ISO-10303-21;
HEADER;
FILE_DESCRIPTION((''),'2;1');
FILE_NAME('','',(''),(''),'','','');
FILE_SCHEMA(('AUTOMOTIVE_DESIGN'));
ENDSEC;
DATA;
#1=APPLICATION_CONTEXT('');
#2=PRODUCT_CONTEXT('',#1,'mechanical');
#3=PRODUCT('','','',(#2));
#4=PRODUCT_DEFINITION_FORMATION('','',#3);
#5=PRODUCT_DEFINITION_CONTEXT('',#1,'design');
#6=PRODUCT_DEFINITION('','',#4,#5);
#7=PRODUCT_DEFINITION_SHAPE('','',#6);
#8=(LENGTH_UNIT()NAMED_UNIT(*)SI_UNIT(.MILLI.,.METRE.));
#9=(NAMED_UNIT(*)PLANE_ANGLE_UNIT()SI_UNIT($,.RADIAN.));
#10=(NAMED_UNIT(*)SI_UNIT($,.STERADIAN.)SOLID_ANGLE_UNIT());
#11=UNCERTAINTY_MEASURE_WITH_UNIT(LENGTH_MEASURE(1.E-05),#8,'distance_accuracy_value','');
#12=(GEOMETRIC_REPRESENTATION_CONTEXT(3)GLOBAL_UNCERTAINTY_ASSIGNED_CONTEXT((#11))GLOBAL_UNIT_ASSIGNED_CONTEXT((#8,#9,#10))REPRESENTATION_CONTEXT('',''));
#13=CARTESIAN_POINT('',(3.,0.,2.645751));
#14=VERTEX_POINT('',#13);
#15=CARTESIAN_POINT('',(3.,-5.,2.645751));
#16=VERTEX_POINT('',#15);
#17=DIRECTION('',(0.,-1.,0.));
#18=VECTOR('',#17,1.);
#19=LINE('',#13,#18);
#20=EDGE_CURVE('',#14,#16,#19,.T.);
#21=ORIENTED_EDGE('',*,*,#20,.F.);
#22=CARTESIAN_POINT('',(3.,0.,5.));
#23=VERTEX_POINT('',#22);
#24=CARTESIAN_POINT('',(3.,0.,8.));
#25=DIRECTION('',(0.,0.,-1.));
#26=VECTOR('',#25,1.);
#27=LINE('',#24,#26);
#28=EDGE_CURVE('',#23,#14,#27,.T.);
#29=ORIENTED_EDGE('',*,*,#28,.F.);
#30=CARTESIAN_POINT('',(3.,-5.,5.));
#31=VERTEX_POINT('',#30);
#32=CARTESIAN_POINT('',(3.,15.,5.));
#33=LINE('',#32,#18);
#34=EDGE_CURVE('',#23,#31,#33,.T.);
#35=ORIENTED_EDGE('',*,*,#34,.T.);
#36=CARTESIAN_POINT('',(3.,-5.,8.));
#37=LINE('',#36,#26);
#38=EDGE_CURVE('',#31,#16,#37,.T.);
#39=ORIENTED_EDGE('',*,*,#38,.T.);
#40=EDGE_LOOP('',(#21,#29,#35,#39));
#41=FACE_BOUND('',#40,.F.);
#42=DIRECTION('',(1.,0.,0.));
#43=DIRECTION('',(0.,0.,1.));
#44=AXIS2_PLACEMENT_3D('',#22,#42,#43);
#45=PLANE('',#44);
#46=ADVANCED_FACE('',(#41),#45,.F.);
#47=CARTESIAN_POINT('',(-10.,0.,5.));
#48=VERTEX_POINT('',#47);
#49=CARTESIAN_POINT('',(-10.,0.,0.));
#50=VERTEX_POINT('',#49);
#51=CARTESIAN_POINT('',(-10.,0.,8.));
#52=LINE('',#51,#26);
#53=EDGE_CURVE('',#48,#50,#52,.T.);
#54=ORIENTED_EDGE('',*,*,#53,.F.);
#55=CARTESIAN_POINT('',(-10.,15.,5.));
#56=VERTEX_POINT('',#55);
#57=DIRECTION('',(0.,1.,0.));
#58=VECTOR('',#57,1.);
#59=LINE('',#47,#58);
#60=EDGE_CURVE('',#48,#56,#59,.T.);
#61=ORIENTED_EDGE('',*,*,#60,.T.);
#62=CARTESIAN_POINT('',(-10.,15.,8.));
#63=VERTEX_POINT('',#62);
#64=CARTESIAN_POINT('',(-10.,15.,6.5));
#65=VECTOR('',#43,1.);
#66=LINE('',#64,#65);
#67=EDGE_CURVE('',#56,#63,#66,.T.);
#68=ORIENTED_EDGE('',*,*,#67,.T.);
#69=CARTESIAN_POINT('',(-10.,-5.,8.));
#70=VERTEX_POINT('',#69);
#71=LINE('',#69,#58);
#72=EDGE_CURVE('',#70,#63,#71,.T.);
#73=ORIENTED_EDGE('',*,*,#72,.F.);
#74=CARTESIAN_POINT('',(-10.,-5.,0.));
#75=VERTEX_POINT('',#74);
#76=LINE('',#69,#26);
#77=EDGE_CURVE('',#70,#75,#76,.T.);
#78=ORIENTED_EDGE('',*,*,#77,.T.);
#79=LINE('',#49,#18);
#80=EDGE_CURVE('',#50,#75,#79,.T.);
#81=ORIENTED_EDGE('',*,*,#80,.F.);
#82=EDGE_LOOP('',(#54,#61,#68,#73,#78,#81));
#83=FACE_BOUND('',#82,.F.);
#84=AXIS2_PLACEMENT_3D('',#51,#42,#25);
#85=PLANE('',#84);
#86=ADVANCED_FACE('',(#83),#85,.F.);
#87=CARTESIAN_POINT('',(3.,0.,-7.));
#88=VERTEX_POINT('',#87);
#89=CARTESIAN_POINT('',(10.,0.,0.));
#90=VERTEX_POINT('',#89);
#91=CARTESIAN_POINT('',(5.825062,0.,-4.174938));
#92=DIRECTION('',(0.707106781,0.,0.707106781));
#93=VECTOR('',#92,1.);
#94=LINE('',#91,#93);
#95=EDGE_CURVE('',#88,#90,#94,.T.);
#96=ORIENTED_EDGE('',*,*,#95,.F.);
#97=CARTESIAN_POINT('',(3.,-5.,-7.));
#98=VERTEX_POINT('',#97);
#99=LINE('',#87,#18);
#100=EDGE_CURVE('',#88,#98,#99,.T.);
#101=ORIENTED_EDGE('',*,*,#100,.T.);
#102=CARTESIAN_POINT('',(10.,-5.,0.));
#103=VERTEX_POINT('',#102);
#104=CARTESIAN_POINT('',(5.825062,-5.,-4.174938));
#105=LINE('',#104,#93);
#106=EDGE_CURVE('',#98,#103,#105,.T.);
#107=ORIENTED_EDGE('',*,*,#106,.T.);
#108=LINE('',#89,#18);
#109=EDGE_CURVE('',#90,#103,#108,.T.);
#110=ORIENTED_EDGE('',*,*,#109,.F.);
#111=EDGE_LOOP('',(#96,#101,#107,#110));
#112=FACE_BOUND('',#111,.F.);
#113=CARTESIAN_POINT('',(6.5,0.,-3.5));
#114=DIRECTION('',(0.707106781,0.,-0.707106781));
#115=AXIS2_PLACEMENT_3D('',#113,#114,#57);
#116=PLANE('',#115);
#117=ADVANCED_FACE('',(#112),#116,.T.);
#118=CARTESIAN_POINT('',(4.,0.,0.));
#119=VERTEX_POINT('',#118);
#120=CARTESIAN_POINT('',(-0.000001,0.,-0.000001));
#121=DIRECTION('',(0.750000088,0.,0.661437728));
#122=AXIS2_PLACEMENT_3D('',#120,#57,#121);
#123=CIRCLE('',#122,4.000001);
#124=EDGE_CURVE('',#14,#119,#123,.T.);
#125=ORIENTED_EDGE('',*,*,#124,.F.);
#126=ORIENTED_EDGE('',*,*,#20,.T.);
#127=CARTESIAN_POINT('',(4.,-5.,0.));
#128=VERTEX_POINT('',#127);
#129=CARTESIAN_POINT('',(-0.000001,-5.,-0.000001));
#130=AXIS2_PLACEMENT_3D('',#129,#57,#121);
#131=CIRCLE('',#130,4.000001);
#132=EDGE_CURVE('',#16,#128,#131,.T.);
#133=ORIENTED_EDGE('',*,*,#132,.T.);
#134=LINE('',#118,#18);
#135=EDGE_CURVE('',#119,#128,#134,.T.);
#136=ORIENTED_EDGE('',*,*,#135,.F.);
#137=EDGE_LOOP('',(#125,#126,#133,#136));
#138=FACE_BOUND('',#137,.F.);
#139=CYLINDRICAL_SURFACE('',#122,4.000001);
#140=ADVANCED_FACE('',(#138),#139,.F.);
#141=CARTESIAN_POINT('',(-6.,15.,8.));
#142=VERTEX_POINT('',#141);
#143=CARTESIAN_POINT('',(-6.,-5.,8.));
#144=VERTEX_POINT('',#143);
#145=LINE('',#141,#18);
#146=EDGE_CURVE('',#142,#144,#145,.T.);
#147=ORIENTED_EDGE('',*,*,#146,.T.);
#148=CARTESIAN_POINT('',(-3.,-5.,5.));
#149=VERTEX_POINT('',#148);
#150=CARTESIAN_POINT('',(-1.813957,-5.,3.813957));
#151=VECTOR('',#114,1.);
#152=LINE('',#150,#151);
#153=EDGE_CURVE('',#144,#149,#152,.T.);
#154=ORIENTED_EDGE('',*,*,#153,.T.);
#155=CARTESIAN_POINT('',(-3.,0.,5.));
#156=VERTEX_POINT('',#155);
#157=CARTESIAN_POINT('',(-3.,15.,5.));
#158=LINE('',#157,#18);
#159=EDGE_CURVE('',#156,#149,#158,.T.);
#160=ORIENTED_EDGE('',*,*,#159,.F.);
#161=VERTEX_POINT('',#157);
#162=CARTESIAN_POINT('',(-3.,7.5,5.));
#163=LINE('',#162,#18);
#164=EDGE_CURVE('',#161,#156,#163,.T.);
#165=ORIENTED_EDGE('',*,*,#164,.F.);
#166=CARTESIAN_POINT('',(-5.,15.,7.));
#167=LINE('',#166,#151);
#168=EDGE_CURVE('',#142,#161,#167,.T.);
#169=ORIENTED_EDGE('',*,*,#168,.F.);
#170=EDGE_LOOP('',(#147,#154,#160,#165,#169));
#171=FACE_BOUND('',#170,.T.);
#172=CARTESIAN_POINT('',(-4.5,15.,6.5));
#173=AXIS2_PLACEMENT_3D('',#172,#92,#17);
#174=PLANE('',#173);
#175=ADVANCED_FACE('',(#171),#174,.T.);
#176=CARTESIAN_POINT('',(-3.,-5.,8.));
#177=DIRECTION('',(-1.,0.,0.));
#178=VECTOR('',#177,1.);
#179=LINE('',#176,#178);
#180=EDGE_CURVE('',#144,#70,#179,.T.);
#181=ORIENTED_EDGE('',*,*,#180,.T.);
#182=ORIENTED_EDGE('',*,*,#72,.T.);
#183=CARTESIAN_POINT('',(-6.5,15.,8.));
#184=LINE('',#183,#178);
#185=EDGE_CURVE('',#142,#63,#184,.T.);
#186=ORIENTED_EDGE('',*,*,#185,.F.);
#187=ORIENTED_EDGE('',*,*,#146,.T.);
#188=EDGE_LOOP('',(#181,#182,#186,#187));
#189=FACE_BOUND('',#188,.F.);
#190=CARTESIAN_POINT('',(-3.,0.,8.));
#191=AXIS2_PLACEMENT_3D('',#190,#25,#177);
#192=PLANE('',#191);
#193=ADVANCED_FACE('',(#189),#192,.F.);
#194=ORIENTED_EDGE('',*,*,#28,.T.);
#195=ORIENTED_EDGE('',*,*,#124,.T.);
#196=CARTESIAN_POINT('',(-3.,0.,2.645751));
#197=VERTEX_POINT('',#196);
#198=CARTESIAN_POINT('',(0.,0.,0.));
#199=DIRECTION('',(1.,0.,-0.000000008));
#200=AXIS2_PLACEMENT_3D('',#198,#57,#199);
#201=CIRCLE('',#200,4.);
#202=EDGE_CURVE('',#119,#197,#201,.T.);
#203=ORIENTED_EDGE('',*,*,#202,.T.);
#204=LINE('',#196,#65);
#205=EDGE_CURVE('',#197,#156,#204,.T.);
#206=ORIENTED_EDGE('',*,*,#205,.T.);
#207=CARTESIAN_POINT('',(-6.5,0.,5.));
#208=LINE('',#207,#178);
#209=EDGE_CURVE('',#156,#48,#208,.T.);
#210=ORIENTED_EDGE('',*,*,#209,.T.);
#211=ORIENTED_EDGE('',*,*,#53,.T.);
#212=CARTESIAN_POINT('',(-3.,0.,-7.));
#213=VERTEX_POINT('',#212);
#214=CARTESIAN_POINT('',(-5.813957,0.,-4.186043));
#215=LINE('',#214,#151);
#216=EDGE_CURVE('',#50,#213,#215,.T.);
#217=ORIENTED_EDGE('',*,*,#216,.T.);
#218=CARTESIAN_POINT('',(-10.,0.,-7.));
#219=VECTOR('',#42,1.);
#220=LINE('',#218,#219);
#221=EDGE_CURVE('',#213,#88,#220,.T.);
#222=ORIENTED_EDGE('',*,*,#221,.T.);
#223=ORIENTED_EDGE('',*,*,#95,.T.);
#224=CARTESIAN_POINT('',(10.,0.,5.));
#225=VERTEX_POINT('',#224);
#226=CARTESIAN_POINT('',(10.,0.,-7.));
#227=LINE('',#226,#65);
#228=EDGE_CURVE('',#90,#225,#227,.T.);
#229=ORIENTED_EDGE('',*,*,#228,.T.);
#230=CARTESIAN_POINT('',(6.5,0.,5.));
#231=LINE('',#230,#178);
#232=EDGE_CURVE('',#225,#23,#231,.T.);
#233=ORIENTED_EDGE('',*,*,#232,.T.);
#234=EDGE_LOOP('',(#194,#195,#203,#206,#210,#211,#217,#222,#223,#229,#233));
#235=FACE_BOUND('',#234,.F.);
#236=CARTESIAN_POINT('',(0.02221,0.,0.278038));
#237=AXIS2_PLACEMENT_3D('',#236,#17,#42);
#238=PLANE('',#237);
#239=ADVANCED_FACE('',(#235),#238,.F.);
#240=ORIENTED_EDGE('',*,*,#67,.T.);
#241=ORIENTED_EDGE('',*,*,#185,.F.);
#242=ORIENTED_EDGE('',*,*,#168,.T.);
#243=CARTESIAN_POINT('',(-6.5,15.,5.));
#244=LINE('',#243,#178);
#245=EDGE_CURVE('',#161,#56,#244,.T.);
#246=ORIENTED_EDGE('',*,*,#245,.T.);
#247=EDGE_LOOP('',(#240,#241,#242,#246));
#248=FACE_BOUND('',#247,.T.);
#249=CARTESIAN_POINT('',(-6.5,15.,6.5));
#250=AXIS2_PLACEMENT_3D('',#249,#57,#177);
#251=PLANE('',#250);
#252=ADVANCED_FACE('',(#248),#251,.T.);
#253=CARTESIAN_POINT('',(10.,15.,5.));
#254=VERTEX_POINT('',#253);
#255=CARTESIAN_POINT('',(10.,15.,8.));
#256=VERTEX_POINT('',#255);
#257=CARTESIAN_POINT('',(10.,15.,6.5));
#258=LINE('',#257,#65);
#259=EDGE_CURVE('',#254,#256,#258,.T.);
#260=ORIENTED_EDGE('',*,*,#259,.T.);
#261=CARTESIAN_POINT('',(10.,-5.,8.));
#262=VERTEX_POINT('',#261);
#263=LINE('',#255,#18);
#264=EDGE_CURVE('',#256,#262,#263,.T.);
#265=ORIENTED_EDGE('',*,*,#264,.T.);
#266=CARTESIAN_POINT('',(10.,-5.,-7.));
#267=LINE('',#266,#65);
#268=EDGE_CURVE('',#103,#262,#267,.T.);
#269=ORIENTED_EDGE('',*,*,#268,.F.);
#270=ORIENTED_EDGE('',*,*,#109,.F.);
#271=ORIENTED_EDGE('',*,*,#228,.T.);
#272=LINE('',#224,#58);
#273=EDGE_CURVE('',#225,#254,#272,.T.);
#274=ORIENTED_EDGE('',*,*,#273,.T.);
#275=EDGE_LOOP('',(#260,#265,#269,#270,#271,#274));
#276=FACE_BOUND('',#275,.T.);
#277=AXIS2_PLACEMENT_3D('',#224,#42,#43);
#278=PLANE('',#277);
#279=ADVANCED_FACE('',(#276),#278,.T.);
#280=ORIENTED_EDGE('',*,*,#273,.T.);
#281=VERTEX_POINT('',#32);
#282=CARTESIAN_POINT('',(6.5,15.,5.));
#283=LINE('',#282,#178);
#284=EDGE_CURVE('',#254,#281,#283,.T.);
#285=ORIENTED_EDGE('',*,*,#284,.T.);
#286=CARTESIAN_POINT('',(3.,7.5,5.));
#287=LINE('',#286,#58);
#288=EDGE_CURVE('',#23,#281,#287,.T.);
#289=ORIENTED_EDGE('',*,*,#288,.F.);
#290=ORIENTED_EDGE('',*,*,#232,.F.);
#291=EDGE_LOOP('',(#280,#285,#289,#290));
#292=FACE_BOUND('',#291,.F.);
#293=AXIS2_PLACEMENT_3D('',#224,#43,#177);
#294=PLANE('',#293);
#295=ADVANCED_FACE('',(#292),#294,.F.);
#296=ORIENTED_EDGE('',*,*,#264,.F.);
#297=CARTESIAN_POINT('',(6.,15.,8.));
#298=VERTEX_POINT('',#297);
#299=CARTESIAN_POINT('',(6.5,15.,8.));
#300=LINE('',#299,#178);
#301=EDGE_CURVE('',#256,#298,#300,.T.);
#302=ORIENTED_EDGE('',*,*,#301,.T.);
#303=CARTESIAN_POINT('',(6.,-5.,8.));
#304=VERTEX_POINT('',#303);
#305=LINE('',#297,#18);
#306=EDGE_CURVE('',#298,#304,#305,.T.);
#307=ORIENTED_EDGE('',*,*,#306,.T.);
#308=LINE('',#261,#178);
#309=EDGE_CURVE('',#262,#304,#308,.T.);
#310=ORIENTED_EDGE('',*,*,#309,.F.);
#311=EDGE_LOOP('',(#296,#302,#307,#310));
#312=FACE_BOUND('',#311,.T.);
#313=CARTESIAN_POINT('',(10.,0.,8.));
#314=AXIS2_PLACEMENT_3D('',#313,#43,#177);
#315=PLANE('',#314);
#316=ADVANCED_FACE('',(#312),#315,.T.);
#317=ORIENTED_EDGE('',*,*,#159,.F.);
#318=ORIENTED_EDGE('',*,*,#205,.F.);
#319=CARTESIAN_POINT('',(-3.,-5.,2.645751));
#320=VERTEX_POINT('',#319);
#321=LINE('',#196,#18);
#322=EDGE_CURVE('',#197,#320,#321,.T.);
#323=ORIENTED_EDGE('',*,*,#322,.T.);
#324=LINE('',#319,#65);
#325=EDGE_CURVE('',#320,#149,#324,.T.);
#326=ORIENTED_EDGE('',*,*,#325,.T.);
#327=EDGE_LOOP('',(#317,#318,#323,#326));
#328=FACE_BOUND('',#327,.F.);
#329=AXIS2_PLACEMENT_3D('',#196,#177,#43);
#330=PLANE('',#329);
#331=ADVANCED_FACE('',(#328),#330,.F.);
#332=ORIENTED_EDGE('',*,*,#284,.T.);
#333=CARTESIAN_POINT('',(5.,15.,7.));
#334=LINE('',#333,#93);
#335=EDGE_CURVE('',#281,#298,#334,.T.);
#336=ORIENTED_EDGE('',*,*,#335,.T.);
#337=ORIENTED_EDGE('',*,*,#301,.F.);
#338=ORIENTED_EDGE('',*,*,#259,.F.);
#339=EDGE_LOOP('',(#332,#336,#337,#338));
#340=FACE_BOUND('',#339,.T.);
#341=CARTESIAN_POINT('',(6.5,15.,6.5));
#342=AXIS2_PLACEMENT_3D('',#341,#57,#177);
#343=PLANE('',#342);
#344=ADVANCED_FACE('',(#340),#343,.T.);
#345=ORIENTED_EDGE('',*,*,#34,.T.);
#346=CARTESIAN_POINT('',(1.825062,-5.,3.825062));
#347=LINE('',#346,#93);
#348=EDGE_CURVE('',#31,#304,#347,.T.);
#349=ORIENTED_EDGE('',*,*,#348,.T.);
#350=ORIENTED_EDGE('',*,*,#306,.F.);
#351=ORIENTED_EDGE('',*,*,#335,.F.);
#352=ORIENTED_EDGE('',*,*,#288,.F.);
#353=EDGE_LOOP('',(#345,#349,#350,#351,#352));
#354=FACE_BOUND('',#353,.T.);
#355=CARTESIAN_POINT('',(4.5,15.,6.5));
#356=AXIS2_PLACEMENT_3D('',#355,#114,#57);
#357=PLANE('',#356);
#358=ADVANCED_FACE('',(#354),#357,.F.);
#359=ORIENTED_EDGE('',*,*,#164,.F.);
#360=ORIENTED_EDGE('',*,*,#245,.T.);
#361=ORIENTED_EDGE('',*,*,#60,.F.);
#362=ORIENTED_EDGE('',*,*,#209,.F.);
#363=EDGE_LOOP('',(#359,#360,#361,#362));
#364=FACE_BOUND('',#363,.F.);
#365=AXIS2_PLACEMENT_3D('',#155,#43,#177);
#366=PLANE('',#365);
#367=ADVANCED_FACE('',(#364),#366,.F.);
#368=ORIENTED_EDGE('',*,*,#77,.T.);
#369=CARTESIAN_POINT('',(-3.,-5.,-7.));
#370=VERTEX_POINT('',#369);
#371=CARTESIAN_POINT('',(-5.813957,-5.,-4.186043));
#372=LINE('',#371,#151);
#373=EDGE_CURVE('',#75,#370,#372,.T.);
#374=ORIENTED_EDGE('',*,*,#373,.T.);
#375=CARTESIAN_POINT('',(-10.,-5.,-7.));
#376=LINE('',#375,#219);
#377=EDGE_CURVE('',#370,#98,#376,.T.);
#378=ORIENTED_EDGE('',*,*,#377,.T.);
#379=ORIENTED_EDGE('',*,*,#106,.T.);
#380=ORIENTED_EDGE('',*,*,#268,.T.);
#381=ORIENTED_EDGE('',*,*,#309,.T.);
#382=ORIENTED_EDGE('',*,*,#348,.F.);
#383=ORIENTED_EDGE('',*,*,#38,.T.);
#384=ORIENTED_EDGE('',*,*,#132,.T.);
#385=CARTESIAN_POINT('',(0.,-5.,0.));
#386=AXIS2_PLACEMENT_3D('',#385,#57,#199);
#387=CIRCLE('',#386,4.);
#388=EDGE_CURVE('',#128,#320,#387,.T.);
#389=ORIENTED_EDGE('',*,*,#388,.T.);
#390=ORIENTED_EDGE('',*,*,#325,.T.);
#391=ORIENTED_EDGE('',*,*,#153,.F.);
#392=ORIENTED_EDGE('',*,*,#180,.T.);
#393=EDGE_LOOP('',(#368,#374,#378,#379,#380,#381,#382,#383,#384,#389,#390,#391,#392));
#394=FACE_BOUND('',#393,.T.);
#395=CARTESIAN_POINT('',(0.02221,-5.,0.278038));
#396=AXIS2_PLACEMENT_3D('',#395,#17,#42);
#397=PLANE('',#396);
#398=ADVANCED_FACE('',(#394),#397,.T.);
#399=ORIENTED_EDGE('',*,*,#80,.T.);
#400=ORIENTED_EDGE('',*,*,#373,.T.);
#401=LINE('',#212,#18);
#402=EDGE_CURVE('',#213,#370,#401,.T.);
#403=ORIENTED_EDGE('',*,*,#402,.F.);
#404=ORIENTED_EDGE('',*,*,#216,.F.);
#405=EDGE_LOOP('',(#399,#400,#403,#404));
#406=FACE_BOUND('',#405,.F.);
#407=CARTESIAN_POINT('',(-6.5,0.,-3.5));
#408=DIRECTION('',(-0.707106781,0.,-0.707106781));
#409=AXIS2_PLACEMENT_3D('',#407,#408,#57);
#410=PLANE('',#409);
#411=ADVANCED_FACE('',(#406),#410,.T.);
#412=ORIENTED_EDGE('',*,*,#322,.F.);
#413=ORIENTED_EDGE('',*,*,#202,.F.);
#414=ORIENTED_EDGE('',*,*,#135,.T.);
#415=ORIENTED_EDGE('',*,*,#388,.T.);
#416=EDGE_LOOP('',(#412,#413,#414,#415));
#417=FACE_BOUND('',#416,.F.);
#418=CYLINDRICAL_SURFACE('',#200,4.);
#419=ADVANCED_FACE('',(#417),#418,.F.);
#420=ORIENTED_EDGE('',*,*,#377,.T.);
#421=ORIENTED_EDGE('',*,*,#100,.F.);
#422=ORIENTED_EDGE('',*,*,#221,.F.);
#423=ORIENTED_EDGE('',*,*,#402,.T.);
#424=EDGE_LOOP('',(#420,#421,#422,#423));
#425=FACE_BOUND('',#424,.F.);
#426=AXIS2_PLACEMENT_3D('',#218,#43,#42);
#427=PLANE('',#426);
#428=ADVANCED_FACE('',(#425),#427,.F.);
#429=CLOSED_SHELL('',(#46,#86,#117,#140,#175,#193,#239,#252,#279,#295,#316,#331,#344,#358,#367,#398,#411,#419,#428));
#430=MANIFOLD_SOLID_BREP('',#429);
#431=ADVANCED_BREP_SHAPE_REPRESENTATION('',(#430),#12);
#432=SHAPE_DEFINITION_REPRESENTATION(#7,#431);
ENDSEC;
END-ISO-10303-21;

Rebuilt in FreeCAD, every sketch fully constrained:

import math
import FreeCAD as App
import Part
import Sketcher

V = App.Vector
Q = App.Units.Quantity


def edges_at(feature, points):
    """Names of the edges that pass closest to the given points."""
    edges = feature.Shape.Edges
    near = lambda p: min(range(len(edges)), key=lambda i: edges[i].distToShape(Part.Vertex(*p))[0])
    return sorted({f"Edge{near(p) + 1}" for p in points})


def add_polygon(sketch, points):
    """Adds a closed chain of lines whose ends are joined by coincident constraints."""
    first, n = sketch.GeometryCount, len(points)
    for a, b in zip(points, points[1:] + points[:1]):
        sketch.addGeometry(Part.LineSegment(App.Vector(*a, 0), App.Vector(*b, 0)), False)
    for i in range(n):
        sketch.addConstraint(Sketcher.Constraint("Coincident", first + i, 2, first + (i + 1) % n, 1))

doc = App.newDocument("Part")
body = doc.addObject("PartDesign::Body", "Body")

sketch1 = body.newObject("Sketcher::SketchObject", "Sketch")
sketch1.AttachmentSupport = (doc.getObject("XZ_Plane"), [""])
sketch1.MapMode = "FlatFace"
sketch1.addGeometry([
    Part.ArcOfCircle(Part.Circle(V(0, 0, 0), V(0, 0, 1), 4), math.radians(0), math.radians(41)),
    Part.ArcOfCircle(Part.Circle(V(0, 0, 0), V(0, 0, 1), 4), math.radians(139), math.radians(360)),
    Part.LineSegment(V(-3, 2.6, 0), V(-3, 8, 0)),
    Part.LineSegment(V(-3, 8, 0), V(-10, 8, 0)),
    Part.LineSegment(V(-10, 8, 0), V(-10, -7, 0)),
    Part.LineSegment(V(-10, -7, 0), V(10, -7, 0)),
    Part.LineSegment(V(10, -7, 0), V(10, 8, 0)),
    Part.LineSegment(V(10, 8, 0), V(3, 8, 0)),
    Part.LineSegment(V(3, 8, 0), V(3, 2.6, 0)),
], False)
sketch1.addConstraint([
    Sketcher.Constraint("Tangent", 0, 1, 1, 2),
    Sketcher.Constraint("Coincident", 1, 1, 2, 1),
    Sketcher.Constraint("Coincident", 2, 2, 3, 1),
    Sketcher.Constraint("Coincident", 3, 2, 4, 1),
    Sketcher.Constraint("Coincident", 4, 2, 5, 1),
    Sketcher.Constraint("Coincident", 5, 2, 6, 1),
    Sketcher.Constraint("Coincident", 6, 2, 7, 1),
    Sketcher.Constraint("Coincident", 7, 2, 8, 1),
    Sketcher.Constraint("Coincident", 8, 2, 0, 2),
    Sketcher.Constraint("Vertical", 2),
    Sketcher.Constraint("Horizontal", 3),
    Sketcher.Constraint("Vertical", 4),
    Sketcher.Constraint("Horizontal", 5),
    Sketcher.Constraint("Vertical", 6),
    Sketcher.Constraint("Horizontal", 7),
    Sketcher.Constraint("Vertical", 8),
    Sketcher.Constraint("Coincident", 0, 3, -1, 1),
    Sketcher.Constraint("Equal", 0, 1),
    Sketcher.Constraint("Symmetric", 3, 2, 6, 2, -2),
    Sketcher.Constraint("PointOnObject", 0, 1, -1),
    Sketcher.Constraint("Horizontal", 1, 1, 8, 2),
    Sketcher.Constraint("Radius", 0, Q("4.000001 mm")),
    Sketcher.Constraint("DistanceX", 3, 2, 3, 1, Q("7 mm")),
    Sketcher.Constraint("DistanceX", 5, 1, 5, 2, Q("20 mm")),
    Sketcher.Constraint("DistanceY", 4, 2, 4, 1, Q("15 mm")),
    Sketcher.Constraint("DistanceY", -1, 1, 2, 2, Q("8 mm")),
])
pad1 = body.newObject("PartDesign::Pad", "Pad")
pad1.Profile = sketch1
pad1.Length = 5
doc.recompute()

chamfer = body.newObject("PartDesign::Chamfer", "Chamfer")
chamfer.Base = (pad1, edges_at(pad1, [(-10, -2.5, -7), (10, -2.5, -7)]))
chamfer.Size = 7

sketch2 = body.newObject("Sketcher::SketchObject", "Sketch001")
sketch2.AttachmentSupport = (doc.getObject("XZ_Plane"), [""])
sketch2.MapMode = "FlatFace"
add_polygon(sketch2, [(10, 8), (10, 5), (3, 5), (3, 8)])
add_polygon(sketch2, [(-3, 8), (-3, 5), (-10, 5), (-10, 8)])
sketch2.addConstraint([
    Sketcher.Constraint("Vertical", 0),
    Sketcher.Constraint("Horizontal", 1),
    Sketcher.Constraint("Vertical", 2),
    Sketcher.Constraint("Horizontal", 3),
    Sketcher.Constraint("Vertical", 4),
    Sketcher.Constraint("Horizontal", 5),
    Sketcher.Constraint("Vertical", 6),
    Sketcher.Constraint("Horizontal", 7),
    Sketcher.Constraint("Symmetric", 1, 2, 4, 2, -2),
    Sketcher.Constraint("Symmetric", 3, 2, 6, 2, -2),
    Sketcher.Constraint("DistanceX", 1, 2, 1, 1, Q("7 mm")),
    Sketcher.Constraint("DistanceY", 0, 2, 0, 1, Q("3 mm")),
    Sketcher.Constraint("DistanceX", -1, 1, 0, 2, Q("10 mm")),
    Sketcher.Constraint("DistanceY", -1, 1, 0, 2, Q("5 mm")),
])
pad2 = body.newObject("PartDesign::Pad", "Pad001")
pad2.Profile = sketch2
pad2.Length = 15
pad2.Reversed = True
doc.recompute()

chamfer2 = body.newObject("PartDesign::Chamfer", "Chamfer001")
chamfer2.Base = (pad2, edges_at(pad2, [(-3, 5, 8), (3, 5, 8)]))
chamfer2.Size = 3

doc.recompute()
